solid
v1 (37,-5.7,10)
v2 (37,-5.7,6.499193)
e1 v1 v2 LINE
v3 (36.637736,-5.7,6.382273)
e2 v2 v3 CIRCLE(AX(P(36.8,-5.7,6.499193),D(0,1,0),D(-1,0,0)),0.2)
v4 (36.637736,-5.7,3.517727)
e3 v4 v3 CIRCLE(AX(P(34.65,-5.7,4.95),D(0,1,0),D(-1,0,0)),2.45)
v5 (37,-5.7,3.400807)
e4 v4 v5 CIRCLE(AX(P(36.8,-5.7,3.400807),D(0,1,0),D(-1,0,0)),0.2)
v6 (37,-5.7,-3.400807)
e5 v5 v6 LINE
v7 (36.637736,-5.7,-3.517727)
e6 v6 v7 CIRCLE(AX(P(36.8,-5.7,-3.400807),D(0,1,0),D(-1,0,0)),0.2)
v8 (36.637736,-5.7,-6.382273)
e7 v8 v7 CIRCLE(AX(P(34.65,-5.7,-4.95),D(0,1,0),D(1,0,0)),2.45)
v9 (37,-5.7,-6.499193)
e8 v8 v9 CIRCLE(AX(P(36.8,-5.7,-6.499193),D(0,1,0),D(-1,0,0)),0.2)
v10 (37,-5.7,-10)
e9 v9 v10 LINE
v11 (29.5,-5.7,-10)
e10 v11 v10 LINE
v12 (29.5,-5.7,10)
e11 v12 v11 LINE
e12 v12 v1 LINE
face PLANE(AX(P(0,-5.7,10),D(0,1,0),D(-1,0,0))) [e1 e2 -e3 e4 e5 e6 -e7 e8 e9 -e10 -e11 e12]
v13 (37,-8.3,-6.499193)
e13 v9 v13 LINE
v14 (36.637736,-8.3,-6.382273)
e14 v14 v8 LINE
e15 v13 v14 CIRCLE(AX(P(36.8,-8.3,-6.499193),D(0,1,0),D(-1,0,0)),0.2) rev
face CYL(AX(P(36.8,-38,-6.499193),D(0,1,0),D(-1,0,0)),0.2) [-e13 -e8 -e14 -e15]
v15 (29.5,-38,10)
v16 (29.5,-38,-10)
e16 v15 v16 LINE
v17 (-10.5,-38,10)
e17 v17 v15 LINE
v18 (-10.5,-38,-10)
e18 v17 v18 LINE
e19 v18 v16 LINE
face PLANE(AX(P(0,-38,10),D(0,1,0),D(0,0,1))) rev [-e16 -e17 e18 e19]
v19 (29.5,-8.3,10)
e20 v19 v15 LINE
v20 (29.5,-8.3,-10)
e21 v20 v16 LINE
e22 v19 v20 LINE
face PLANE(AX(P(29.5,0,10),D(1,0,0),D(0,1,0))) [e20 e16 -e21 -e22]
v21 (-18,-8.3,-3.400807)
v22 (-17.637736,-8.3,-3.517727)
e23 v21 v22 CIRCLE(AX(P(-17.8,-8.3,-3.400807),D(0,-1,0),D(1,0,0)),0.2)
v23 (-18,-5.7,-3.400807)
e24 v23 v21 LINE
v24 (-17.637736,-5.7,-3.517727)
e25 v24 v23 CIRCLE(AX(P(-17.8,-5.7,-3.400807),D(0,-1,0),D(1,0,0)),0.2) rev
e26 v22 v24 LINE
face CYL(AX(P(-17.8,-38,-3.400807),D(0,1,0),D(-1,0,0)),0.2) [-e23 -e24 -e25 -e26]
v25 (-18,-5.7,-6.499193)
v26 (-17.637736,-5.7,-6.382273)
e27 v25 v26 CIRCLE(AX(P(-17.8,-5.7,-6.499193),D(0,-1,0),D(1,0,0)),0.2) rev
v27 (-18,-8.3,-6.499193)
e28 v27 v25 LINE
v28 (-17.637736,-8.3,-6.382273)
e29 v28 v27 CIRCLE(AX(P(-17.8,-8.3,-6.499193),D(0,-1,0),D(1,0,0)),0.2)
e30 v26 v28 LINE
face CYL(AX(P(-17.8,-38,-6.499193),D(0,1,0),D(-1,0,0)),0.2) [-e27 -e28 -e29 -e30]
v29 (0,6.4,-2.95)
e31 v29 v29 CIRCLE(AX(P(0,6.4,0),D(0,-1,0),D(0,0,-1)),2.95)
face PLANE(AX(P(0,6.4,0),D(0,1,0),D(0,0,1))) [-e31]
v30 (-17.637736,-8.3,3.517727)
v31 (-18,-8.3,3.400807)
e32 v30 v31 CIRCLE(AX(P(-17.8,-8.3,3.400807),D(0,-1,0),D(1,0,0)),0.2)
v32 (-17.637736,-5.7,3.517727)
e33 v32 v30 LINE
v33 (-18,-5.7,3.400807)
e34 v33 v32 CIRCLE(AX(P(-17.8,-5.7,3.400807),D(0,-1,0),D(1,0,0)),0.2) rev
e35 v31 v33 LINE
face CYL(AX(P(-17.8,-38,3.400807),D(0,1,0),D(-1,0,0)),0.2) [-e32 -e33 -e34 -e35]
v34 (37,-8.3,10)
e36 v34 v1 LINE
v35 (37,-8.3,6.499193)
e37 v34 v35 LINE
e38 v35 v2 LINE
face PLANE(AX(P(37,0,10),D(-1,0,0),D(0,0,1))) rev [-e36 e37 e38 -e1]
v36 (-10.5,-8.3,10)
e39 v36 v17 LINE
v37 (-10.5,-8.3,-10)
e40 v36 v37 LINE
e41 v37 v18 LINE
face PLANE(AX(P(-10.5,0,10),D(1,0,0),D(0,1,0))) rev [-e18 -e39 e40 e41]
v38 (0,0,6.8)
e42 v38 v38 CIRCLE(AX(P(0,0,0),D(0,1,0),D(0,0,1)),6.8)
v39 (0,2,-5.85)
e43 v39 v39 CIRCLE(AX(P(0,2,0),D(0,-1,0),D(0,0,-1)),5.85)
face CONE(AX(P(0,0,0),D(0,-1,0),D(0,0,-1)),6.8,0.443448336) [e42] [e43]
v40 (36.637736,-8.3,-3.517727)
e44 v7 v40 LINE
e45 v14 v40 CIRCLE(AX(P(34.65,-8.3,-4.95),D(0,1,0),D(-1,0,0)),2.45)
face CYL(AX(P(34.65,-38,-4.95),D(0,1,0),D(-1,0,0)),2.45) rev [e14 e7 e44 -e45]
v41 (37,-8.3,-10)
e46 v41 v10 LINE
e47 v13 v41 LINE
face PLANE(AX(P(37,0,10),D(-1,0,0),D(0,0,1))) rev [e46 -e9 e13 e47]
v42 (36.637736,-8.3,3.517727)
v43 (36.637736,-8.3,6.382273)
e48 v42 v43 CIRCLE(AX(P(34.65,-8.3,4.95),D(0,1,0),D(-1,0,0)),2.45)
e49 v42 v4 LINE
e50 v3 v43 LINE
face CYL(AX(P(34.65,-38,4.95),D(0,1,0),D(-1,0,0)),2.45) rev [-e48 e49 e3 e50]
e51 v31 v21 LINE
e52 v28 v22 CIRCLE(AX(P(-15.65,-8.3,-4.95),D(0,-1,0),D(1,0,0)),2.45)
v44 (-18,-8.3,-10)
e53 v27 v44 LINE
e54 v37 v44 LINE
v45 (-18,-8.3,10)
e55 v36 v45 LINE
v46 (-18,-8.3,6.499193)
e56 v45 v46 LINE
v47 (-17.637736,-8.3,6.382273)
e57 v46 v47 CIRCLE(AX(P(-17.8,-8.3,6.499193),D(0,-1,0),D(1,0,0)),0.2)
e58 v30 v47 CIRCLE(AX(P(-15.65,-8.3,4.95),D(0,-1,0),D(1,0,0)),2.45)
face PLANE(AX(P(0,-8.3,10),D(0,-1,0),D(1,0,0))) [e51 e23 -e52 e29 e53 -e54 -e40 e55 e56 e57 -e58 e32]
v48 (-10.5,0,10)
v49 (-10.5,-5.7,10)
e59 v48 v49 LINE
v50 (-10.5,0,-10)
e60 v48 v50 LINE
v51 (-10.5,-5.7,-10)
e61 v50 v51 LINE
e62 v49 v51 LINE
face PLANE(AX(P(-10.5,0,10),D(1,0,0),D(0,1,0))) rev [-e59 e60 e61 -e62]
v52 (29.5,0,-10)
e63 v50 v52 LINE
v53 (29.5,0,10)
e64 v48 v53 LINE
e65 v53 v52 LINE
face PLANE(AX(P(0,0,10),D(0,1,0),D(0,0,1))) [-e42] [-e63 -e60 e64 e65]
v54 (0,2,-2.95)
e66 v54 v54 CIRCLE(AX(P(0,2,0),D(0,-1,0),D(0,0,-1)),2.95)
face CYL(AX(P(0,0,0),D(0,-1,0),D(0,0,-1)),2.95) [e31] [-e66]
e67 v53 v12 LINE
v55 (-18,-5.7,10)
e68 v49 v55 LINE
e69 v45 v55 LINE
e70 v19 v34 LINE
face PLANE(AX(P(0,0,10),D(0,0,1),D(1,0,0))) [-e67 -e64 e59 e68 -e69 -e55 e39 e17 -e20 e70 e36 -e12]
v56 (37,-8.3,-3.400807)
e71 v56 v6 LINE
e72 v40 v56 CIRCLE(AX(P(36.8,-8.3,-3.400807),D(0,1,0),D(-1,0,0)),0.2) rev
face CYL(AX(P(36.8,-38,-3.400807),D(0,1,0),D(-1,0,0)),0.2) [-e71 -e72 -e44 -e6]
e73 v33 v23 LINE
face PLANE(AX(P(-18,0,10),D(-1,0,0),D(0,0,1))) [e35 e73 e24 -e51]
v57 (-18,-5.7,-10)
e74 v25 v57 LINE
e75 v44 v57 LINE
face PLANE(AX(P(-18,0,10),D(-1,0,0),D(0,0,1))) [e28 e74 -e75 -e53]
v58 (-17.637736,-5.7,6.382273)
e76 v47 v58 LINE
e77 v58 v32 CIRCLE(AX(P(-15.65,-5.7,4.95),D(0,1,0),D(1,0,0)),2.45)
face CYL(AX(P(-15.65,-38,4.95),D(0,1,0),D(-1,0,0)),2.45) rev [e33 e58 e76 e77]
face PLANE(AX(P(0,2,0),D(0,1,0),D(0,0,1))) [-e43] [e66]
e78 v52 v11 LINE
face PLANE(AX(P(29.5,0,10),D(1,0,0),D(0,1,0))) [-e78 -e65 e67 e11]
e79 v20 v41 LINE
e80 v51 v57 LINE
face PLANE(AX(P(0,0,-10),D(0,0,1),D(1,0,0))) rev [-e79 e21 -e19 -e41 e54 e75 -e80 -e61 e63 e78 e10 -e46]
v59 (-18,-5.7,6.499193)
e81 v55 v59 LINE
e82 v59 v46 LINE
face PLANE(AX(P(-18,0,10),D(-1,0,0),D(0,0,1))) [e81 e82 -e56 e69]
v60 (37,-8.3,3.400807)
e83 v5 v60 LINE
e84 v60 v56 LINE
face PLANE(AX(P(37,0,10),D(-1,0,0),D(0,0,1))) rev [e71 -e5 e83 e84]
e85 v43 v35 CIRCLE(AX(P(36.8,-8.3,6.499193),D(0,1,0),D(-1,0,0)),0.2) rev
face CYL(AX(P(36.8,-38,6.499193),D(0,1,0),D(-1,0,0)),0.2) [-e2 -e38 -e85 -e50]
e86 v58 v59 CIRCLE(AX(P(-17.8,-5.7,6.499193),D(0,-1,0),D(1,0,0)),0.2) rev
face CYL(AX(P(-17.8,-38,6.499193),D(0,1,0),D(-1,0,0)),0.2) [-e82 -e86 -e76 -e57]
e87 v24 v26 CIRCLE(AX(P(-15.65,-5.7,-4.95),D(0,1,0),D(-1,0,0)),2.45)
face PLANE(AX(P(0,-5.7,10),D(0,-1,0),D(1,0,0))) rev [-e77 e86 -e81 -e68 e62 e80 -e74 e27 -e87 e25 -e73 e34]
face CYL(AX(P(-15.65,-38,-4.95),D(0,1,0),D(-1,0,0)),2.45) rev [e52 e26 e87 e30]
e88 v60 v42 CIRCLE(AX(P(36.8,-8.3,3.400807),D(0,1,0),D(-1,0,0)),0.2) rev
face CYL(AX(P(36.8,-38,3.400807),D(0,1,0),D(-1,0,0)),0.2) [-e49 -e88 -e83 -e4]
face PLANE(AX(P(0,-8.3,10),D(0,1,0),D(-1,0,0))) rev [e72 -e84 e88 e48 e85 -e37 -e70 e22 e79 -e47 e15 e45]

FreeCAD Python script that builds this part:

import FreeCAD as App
import Part
import Sketcher


def edges_at(feature, points):
    """Names of the edges that pass closest to the given points."""
    edges = feature.Shape.Edges
    near = lambda p: min(range(len(edges)), key=lambda i: edges[i].distToShape(Part.Vertex(*p))[0])
    return sorted({f"Edge{near(p) + 1}" for p in points})


def add_polygon(sketch, points):
    """Adds a closed chain of lines whose ends are joined by coincident constraints."""
    first, n = sketch.GeometryCount, len(points)
    for a, b in zip(points, points[1:] + points[:1]):
        sketch.addGeometry(Part.LineSegment(App.Vector(*a, 0), App.Vector(*b, 0)), False)
    for i in range(n):
        sketch.addConstraint(Sketcher.Constraint("Coincident", first + i, 2, first + (i + 1) % n, 1))

doc = App.newDocument("Part")
body = doc.addObject("PartDesign::Body", "Body")

# Sketch on XY plane
sketch1 = body.newObject("Sketcher::SketchObject", "Sketch")
sketch1.AttachmentSupport = (doc.getObject("XY_Plane"), [""])
sketch1.MapMode = "FlatFace"
add_polygon(sketch1, [(-10.5, -8.3), (-10.5, -38), (29.5, -38), (29.5, -8.3), (37, -8.3), (37, -5.7), (29.5, -5.7), (29.5, 0), (-10.5, 0), (-10.5, -5.7), (-18, -5.7), (-18, -8.3)])  # lines 0-11
sketch1.addConstraint([
    Sketcher.Constraint("Vertical", 0),
    Sketcher.Constraint("Horizontal", 1),
    Sketcher.Constraint("Vertical", 2),
    Sketcher.Constraint("Horizontal", 3),
    Sketcher.Constraint("Vertical", 4),
    Sketcher.Constraint("Horizontal", 5),
    Sketcher.Constraint("Vertical", 6),
    Sketcher.Constraint("Horizontal", 7),
    Sketcher.Constraint("Vertical", 8),
    Sketcher.Constraint("Horizontal", 9),
    Sketcher.Constraint("Vertical", 10),
    Sketcher.Constraint("Horizontal", 11),
    Sketcher.Constraint("PointOnObject", 6, 2, -1),
    Sketcher.Constraint("Horizontal", 5, 2, 8, 2),
    Sketcher.Constraint("Horizontal", 3, 2, 10, 2),
    Sketcher.Constraint("Vertical", 2, 2, 5, 2),
    Sketcher.Constraint("Vertical", 0, 2, 7, 2),
    Sketcher.Constraint("Equal", 5, 9),
    Sketcher.Constraint("DistanceX", 1, 1, 1, 2, 40.0),
    Sketcher.Constraint("DistanceX", 3, 1, 3, 2, 7.5),
    Sketcher.Constraint("DistanceY", 0, 2, 0, 1, 29.7),
    Sketcher.Constraint("DistanceY", 4, 1, 4, 2, 2.6),
    Sketcher.Constraint("DistanceY", 6, 1, 6, 2, 5.7),
    Sketcher.Constraint("DistanceX", -1, 1, 3, 2, 37.0),
])
pad1 = body.newObject("PartDesign::Pad", "Pad")
pad1.Profile = sketch1
pad1.Length = 20
pad1.Midplane = True

# Sketch on XY plane
sketch2 = body.newObject("Sketcher::SketchObject", "Sketch001")
sketch2.AttachmentSupport = (doc.getObject("XY_Plane"), [""])
sketch2.MapMode = "FlatFace"
add_polygon(sketch2, [(0, 6.4), (0, 0), (6.8, 0), (5.85, 2), (2.95, 2), (2.95, 6.4)])  # lines 0-5
sketch2.addConstraint([
    Sketcher.Constraint("Vertical", 0),
    Sketcher.Constraint("Horizontal", 1),
    Sketcher.Constraint("Horizontal", 3),
    Sketcher.Constraint("Vertical", 4),
    Sketcher.Constraint("Horizontal", 5),
    Sketcher.Constraint("Coincident", 0, 2, -1, 1),
    Sketcher.Constraint("DistanceX", 1, 1, 1, 2, 6.8),
    Sketcher.Constraint("DistanceX", 3, 2, 3, 1, 2.9),
    Sketcher.Constraint("DistanceY", 0, 2, 0, 1, 6.4),
    Sketcher.Constraint("DistanceY", 4, 1, 4, 2, 4.4),
    Sketcher.Constraint("DistanceX", 5, 2, 5, 1, 2.95),
])
revolution = body.newObject("PartDesign::Revolution", "Revolution")
revolution.Profile = sketch2
revolution.ReferenceAxis = (sketch2, ["V_Axis"])
revolution.Angle = 360

# Sketch on XZ plane
sketch3 = body.newObject("Sketcher::SketchObject", "Sketch002")
sketch3.AttachmentSupport = (doc.getObject("XZ_Plane"), [""])
sketch3.MapMode = "FlatFace"
sketch3.AttachmentOffset = App.Placement(App.Vector(0, 0, 5.7), App.Rotation())
sketch3.addGeometry([
    Part.Circle(App.Vector(-15.65, -4.95, 0), App.Vector(0, 0, 1), 2.45),
    Part.Circle(App.Vector(-15.65, 4.95, 0), App.Vector(0, 0, 1), 2.45),
    Part.Circle(App.Vector(34.65, 4.95, 0), App.Vector(0, 0, 1), 2.45),
    Part.Circle(App.Vector(34.65, -4.95, 0), App.Vector(0, 0, 1), 2.45),
], False)
sketch3.addConstraint([
    Sketcher.Constraint("Equal", 0, 1),
    Sketcher.Constraint("Equal", 1, 2),
    Sketcher.Constraint("Equal", 2, 3),
    Sketcher.Constraint("Symmetric", 0, 3, 1, 3, -1),
    Sketcher.Constraint("Symmetric", 2, 3, 3, 3, -1),
    Sketcher.Constraint("Horizontal", 1, 3, 2, 3),
    Sketcher.Constraint("Diameter", 0, 4.9),
    Sketcher.Constraint("DistanceY", 0, 3, 1, 3, 9.9),
    Sketcher.Constraint("DistanceX", 1, 3, 2, 3, 50.3),
    Sketcher.Constraint("DistanceX", 0, 3, -1, 1, 15.65),
])
pocket1 = body.newObject("PartDesign::Pocket", "Pocket")
pocket1.Profile = sketch3
pocket1.Type = "ThroughAll"
pocket1.Reversed = True
doc.recompute()

fillet = body.newObject("PartDesign::Fillet", "Fillet")
fillet.Base = (pocket1, edges_at(pocket1, [
    (37, -7, -4.257),
    (37, -7, -5.643),
    (37, -7, 5.643),
    (37, -7, 4.257),
    (-18, -7, 5.643),
    (-18, -7, 4.257),
    (-18, -7, -4.257),
    (-18, -7, -5.643),
]))
fillet.Radius = 0.2

doc.recompute()
